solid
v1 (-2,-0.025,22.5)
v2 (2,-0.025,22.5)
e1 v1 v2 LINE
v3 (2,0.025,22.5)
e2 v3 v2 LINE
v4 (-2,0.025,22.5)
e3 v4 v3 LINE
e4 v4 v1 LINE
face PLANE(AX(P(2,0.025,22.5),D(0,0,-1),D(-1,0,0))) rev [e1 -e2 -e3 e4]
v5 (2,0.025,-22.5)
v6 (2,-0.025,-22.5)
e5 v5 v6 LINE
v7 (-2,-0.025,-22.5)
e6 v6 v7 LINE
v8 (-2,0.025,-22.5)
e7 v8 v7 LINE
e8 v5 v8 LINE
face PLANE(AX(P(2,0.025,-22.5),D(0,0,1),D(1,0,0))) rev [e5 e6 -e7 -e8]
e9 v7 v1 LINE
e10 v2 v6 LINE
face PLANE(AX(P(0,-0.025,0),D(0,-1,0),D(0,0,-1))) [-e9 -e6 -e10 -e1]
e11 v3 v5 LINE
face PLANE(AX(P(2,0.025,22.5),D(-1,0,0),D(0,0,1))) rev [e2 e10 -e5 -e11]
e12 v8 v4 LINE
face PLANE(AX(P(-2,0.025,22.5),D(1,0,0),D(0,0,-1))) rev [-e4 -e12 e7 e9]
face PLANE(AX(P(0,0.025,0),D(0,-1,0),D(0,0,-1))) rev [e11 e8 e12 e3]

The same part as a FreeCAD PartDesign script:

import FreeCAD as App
import Part
import Sketcher
from FreeCAD import Vector


def add_polygon(sketch, points):
    """Adds a closed chain of lines whose ends are joined by coincident constraints."""
    first, n = sketch.GeometryCount, len(points)
    for a, b in zip(points, points[1:] + points[:1]):
        sketch.addGeometry(Part.LineSegment(App.Vector(*a, 0), App.Vector(*b, 0)), False)
    for i in range(n):
        sketch.addConstraint(Sketcher.Constraint("Coincident", first + i, 2, first + (i + 1) % n, 1))

doc = App.newDocument("Part")
params = doc.addObject("Spreadsheet::Sheet", "Params")
for row, (alias, value) in enumerate([
    ("sketch1_width", "4 mm"),
    ("sketch1_height", "45 mm"),
    ("pad1_length", "0.05 mm"),
], start=1):
    params.set(f"A{row}", alias)
    params.set(f"B{row}", "=" + value)
    params.setAlias(f"B{row}", alias)

body = doc.addObject("PartDesign::Body", "Body")

sketch1 = body.newObject("Sketcher::SketchObject", "Sketch")
sketch1.AttachmentSupport = (doc.getObject("XZ_Plane"), [""])
sketch1.MapMode = "FlatFace"
add_polygon(sketch1, [(-2, -22.5), (-2, 22.5), (2, 22.5), (2, -22.5)])
sketch1.addConstraint([
    Sketcher.Constraint("Vertical", 0),
    Sketcher.Constraint("Horizontal", 1),
    Sketcher.Constraint("Vertical", 2),
    Sketcher.Constraint("Horizontal", 3),
    Sketcher.Constraint("Symmetric", 0, 2, 2, 2, -1, 1),
    Sketcher.Constraint("DistanceX", 1, 1, 1, 2, 4.0),
    Sketcher.Constraint("DistanceY", 0, 1, 0, 2, 45.0),
])
sketch1.setExpression("Constraints[9]", "Params.sketch1_width")
sketch1.setExpression("Constraints[10]", "Params.sketch1_height")
pad1 = body.newObject("PartDesign::Pad", "Pad")
pad1.Profile = sketch1
pad1.setExpression("Length", "Params.pad1_length")
pad1.Midplane = True

doc.recompute()
